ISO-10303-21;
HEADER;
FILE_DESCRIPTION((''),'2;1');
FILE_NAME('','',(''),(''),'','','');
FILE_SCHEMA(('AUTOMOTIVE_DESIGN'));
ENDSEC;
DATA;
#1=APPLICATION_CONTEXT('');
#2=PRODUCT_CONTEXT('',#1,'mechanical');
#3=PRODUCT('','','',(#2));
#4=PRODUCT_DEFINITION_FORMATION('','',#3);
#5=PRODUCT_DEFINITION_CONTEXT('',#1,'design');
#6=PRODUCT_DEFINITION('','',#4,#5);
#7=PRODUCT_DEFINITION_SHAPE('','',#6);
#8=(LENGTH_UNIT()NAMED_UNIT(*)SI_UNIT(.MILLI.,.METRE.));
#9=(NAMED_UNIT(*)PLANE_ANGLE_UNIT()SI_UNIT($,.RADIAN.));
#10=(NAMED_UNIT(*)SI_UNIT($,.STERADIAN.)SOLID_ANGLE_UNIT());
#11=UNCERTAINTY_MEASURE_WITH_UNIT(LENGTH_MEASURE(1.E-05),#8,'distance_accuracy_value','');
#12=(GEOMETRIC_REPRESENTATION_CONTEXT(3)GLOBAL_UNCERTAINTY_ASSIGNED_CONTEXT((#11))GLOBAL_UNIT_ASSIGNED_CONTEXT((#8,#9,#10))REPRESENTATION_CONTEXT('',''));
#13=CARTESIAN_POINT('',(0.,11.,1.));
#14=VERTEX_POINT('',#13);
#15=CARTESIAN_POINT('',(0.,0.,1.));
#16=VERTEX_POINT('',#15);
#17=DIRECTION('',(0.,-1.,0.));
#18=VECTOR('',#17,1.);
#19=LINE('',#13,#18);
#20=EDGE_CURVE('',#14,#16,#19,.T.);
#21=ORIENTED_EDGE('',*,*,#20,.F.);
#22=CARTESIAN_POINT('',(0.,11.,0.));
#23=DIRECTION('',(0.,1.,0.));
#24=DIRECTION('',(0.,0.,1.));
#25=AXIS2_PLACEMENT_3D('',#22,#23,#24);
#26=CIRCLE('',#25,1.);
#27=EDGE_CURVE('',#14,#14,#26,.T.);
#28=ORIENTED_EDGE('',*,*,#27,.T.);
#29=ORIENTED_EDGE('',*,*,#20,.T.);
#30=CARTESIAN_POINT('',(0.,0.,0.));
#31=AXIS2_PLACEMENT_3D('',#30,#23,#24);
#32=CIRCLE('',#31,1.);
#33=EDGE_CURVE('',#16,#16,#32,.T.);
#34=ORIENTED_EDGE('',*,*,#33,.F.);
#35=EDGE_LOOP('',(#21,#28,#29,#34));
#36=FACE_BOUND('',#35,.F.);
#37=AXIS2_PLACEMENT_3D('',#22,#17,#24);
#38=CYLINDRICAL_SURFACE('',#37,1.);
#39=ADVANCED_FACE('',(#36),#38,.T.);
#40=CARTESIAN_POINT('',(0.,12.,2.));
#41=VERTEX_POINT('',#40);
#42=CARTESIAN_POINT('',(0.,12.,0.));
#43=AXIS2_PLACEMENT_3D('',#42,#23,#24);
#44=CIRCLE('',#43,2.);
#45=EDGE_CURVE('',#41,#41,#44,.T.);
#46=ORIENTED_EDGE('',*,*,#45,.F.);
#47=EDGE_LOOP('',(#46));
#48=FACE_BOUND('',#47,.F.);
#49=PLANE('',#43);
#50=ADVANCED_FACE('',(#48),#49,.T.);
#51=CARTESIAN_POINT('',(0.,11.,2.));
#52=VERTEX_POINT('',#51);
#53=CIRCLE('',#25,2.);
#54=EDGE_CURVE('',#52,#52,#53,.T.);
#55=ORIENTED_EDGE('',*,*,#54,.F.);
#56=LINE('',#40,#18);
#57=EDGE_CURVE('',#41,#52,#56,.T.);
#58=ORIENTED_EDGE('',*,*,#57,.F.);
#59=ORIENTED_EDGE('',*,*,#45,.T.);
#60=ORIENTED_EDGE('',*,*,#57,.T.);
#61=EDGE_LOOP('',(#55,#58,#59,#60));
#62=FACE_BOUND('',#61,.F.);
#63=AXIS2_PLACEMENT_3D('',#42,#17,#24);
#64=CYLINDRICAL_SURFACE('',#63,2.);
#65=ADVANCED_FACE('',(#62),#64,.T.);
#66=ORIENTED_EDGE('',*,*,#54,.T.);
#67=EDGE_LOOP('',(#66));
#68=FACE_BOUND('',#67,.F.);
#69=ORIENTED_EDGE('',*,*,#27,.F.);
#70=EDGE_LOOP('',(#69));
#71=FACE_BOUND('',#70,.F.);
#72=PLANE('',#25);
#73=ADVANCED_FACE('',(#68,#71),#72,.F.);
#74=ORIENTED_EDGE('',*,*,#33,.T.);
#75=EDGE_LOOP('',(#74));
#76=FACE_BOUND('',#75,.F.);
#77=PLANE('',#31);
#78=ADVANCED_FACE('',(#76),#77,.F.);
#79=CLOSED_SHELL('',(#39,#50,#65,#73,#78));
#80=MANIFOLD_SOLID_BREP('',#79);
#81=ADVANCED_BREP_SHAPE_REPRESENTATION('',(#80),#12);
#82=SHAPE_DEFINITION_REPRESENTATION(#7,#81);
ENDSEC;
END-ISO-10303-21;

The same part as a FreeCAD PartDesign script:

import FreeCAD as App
import Part
import Sketcher

V = App.Vector
Q = App.Units.Quantity

doc = App.newDocument("Part")
params = doc.addObject("Spreadsheet::Sheet", "Params")
for row, (alias, value) in enumerate([
    ("sketch1_width", "1 mm"),
    ("sketch1_width2", "11 mm"),
    ("revolution_angle", "360 deg"),
], start=1):
    params.set(f"A{row}", alias)
    params.set(f"B{row}", "=" + value)
    params.setAlias(f"B{row}", alias)

body = doc.addObject("PartDesign::Body", "Body")

# Sketch on YZ plane
sketch1 = body.newObject("Sketcher::SketchObject", "Sketch")
sketch1.AttachmentSupport = (doc.getObject("YZ_Plane"), [""])
sketch1.MapMode = "FlatFace"
sketch1.addGeometry([
    Part.LineSegment(V(0, 1, 0), V(0, 0, 0)),  # 0
    Part.LineSegment(V(0, 0, 0), V(12, 0, 0)),  # 1
    Part.LineSegment(V(12, 0, 0), V(12, 2, 0)),  # 2
    Part.LineSegment(V(12, 2, 0), V(11, 2, 0)),  # 3
    Part.LineSegment(V(11, 2, 0), V(11, 1, 0)),  # 4
    Part.LineSegment(V(11, 1, 0), V(0, 1, 0)),  # 5
], False)
sketch1.addConstraint([
    Sketcher.Constraint("Coincident", 0, 2, 1, 1),
    Sketcher.Constraint("Coincident", 1, 2, 2, 1),
    Sketcher.Constraint("Coincident", 2, 2, 3, 1),
    Sketcher.Constraint("Coincident", 3, 2, 4, 1),
    Sketcher.Constraint("Coincident", 4, 2, 5, 1),
    Sketcher.Constraint("Coincident", 5, 2, 0, 1),
    Sketcher.Constraint("Vertical", 0),
    Sketcher.Constraint("Horizontal", 1),
    Sketcher.Constraint("Vertical", 2),
    Sketcher.Constraint("Horizontal", 3),
    Sketcher.Constraint("Vertical", 4),
    Sketcher.Constraint("Horizontal", 5),
    Sketcher.Constraint("Coincident", 0, 2, -1, 1),
    Sketcher.Constraint("Equal", 3, 0),
    Sketcher.Constraint("Equal", 0, 4),
    Sketcher.Constraint("DistanceX", 3, 2, 3, 1, Q("1 mm")),
    Sketcher.Constraint("DistanceX", 5, 2, 5, 1, Q("11 mm")),
])
sketch1.setExpression("Constraints[15]", "Params.sketch1_width")
sketch1.setExpression("Constraints[16]", "Params.sketch1_width2")
revolution = body.newObject("PartDesign::Revolution", "Revolution")
revolution.Profile = sketch1
revolution.ReferenceAxis = (sketch1, ["H_Axis"])
revolution.setExpression("Angle", "Params.revolution_angle")

doc.recompute()
